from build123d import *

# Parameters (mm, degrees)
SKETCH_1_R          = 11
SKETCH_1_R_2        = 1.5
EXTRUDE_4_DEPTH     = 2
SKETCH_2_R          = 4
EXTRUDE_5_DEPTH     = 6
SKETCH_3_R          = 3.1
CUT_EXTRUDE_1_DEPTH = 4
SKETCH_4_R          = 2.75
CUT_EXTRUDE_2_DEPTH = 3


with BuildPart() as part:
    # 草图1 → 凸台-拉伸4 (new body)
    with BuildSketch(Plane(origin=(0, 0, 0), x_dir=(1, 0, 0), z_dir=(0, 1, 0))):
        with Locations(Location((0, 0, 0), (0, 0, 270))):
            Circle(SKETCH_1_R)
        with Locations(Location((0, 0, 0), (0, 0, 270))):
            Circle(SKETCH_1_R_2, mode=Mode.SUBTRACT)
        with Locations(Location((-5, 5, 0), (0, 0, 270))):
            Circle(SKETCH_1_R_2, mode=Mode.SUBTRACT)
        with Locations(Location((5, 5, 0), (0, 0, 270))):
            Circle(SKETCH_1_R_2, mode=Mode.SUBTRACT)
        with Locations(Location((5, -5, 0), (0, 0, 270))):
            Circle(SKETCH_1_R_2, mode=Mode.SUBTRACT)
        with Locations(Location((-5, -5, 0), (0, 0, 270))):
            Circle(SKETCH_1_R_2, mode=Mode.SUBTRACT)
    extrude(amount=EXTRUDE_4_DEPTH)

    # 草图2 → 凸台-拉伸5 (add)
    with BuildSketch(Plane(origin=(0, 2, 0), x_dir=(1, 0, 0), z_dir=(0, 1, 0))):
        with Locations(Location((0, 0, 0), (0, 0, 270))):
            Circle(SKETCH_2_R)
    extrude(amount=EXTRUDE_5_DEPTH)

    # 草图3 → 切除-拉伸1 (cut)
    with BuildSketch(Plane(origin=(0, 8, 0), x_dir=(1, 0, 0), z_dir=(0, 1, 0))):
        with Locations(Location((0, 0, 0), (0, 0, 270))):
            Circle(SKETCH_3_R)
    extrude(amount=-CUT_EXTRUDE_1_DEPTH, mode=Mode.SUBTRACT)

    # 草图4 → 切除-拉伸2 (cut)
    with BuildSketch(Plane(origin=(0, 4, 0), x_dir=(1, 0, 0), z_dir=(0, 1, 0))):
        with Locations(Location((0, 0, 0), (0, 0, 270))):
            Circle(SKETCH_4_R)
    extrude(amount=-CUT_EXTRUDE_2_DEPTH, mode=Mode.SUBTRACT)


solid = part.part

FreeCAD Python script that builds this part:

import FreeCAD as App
import Part
import Sketcher
from FreeCAD import Vector
Q = App.Units.Quantity

doc = App.newDocument("Part")
params = doc.addObject("Spreadsheet::Sheet", "Params")
for row, (alias, value) in enumerate([
    ("sketch1_diameter", "22 mm"),
    ("sketch1_diameter2", "3 mm"),
    ("pad1_length", "2 mm"),
    ("sketch2_diameter", "8 mm"),
    ("pad2_length", "6 mm"),
    ("sketch3_diameter", "6.2 mm"),
    ("pocket1_length", "4 mm"),
    ("sketch4_diameter", "5.5 mm"),
    ("pocket2_length", "3 mm"),
], start=1):
    params.set(f"A{row}", alias)
    params.set(f"B{row}", "=" + value)
    params.setAlias(f"B{row}", alias)

body = doc.addObject("PartDesign::Body", "Body")

# Sketch on XZ plane
sketch1 = doc.addObject("Sketcher::SketchObject", "Sketch")
body.addObject(sketch1)
sketch1.AttachmentSupport = (doc.XZ_Plane, [""])
sketch1.MapMode = "FlatFace"
sketch1.addGeometry(Part.Circle(Vector(0, 0, 0), Vector(0, 0, 1), 11), False)
sketch1.addGeometry(Part.Circle(Vector(-5, -5, 0), Vector(0, 0, 1), 1.5), False)
sketch1.addGeometry(Part.Circle(Vector(-5, 5, 0), Vector(0, 0, 1), 1.5), False)
sketch1.addGeometry(Part.Circle(Vector(0, 0, 0), Vector(0, 0, 1), 1.5), False)
sketch1.addGeometry(Part.Circle(Vector(5, -5, 0), Vector(0, 0, 1), 1.5), False)
sketch1.addGeometry(Part.Circle(Vector(5, 5, 0), Vector(0, 0, 1), 1.5), False)
sketch1.addConstraint(Sketcher.Constraint("Coincident", 0, 3, -1, 1))
sketch1.addConstraint(Sketcher.Constraint("Coincident", 3, 3, -1, 1))
sketch1.addConstraint(Sketcher.Constraint("Equal", 1, 2))
sketch1.addConstraint(Sketcher.Constraint("Equal", 2, 3))
sketch1.addConstraint(Sketcher.Constraint("Equal", 3, 4))
sketch1.addConstraint(Sketcher.Constraint("Equal", 4, 5))
sketch1.addConstraint(Sketcher.Constraint("Symmetric", 2, 3, 4, 3, -1, 1))
sketch1.addConstraint(Sketcher.Constraint("Symmetric", 1, 3, 5, 3, -1, 1))
sketch1.addConstraint(Sketcher.Constraint("Symmetric", 1, 3, 4, 3, -2))
sketch1.addConstraint(Sketcher.Constraint("Diameter", 0, Q("22 mm")))
sketch1.addConstraint(Sketcher.Constraint("Diameter", 1, Q("3 mm")))
sketch1.addConstraint(Sketcher.Constraint("DistanceX", 1, 3, -1, 1, Q("5 mm")))
sketch1.addConstraint(Sketcher.Constraint("DistanceY", 1, 3, -1, 1, Q("5 mm")))
sketch1.setExpression("Constraints[9]", "Params.sketch1_diameter")
sketch1.setExpression("Constraints[10]", "Params.sketch1_diameter2")
pad1 = doc.addObject("PartDesign::Pad", "Pad")
body.addObject(pad1)
pad1.Profile = sketch1
pad1.setExpression("Length", "Params.pad1_length")
pad1.Reversed = True

# Sketch on XZ plane
sketch2 = doc.addObject("Sketcher::SketchObject", "Sketch001")
body.addObject(sketch2)
sketch2.AttachmentSupport = (doc.XZ_Plane, [""])
sketch2.MapMode = "FlatFace"
sketch2.AttachmentOffset = App.Placement(Vector(0, 0, -2), App.Rotation())
sketch2.addGeometry(Part.Circle(Vector(0, 0, 0), Vector(0, 0, 1), 4), False)
sketch2.addConstraint(Sketcher.Constraint("Coincident", 0, 3, -1, 1))
sketch2.addConstraint(Sketcher.Constraint("Diameter", 0, Q("8 mm")))
sketch2.setExpression("Constraints[1]", "Params.sketch2_diameter")
pad2 = doc.addObject("PartDesign::Pad", "Pad001")
body.addObject(pad2)
pad2.Profile = sketch2
pad2.setExpression("Length", "Params.pad2_length")
pad2.Reversed = True

# Sketch on XZ plane
sketch3 = doc.addObject("Sketcher::SketchObject", "Sketch002")
body.addObject(sketch3)
sketch3.AttachmentSupport = (doc.XZ_Plane, [""])
sketch3.MapMode = "FlatFace"
sketch3.AttachmentOffset = App.Placement(Vector(0, 0, -8), App.Rotation())
sketch3.addGeometry(Part.Circle(Vector(0, 0, 0), Vector(0, 0, 1), 3.1), False)
sketch3.addConstraint(Sketcher.Constraint("Coincident", 0, 3, -1, 1))
sketch3.addConstraint(Sketcher.Constraint("Diameter", 0, Q("6.2 mm")))
sketch3.setExpression("Constraints[1]", "Params.sketch3_diameter")
pocket1 = doc.addObject("PartDesign::Pocket", "Pocket")
body.addObject(pocket1)
pocket1.Profile = sketch3
pocket1.setExpression("Length", "Params.pocket1_length")
pocket1.Reversed = True

# Sketch on XZ plane
sketch4 = doc.addObject("Sketcher::SketchObject", "Sketch003")
body.addObject(sketch4)
sketch4.AttachmentSupport = (doc.XZ_Plane, [""])
sketch4.MapMode = "FlatFace"
sketch4.AttachmentOffset = App.Placement(Vector(0, 0, -4), App.Rotation())
sketch4.addGeometry(Part.Circle(Vector(0, 0, 0), Vector(0, 0, 1), 2.8), False)
sketch4.addConstraint(Sketcher.Constraint("Coincident", 0, 3, -1, 1))
sketch4.addConstraint(Sketcher.Constraint("Diameter", 0, Q("5.5 mm")))
sketch4.setExpression("Constraints[1]", "Params.sketch4_diameter")
pocket2 = doc.addObject("PartDesign::Pocket", "Pocket001")
body.addObject(pocket2)
pocket2.Profile = sketch4
pocket2.setExpression("Length", "Params.pocket2_length")
pocket2.Reversed = True

doc.recompute()
